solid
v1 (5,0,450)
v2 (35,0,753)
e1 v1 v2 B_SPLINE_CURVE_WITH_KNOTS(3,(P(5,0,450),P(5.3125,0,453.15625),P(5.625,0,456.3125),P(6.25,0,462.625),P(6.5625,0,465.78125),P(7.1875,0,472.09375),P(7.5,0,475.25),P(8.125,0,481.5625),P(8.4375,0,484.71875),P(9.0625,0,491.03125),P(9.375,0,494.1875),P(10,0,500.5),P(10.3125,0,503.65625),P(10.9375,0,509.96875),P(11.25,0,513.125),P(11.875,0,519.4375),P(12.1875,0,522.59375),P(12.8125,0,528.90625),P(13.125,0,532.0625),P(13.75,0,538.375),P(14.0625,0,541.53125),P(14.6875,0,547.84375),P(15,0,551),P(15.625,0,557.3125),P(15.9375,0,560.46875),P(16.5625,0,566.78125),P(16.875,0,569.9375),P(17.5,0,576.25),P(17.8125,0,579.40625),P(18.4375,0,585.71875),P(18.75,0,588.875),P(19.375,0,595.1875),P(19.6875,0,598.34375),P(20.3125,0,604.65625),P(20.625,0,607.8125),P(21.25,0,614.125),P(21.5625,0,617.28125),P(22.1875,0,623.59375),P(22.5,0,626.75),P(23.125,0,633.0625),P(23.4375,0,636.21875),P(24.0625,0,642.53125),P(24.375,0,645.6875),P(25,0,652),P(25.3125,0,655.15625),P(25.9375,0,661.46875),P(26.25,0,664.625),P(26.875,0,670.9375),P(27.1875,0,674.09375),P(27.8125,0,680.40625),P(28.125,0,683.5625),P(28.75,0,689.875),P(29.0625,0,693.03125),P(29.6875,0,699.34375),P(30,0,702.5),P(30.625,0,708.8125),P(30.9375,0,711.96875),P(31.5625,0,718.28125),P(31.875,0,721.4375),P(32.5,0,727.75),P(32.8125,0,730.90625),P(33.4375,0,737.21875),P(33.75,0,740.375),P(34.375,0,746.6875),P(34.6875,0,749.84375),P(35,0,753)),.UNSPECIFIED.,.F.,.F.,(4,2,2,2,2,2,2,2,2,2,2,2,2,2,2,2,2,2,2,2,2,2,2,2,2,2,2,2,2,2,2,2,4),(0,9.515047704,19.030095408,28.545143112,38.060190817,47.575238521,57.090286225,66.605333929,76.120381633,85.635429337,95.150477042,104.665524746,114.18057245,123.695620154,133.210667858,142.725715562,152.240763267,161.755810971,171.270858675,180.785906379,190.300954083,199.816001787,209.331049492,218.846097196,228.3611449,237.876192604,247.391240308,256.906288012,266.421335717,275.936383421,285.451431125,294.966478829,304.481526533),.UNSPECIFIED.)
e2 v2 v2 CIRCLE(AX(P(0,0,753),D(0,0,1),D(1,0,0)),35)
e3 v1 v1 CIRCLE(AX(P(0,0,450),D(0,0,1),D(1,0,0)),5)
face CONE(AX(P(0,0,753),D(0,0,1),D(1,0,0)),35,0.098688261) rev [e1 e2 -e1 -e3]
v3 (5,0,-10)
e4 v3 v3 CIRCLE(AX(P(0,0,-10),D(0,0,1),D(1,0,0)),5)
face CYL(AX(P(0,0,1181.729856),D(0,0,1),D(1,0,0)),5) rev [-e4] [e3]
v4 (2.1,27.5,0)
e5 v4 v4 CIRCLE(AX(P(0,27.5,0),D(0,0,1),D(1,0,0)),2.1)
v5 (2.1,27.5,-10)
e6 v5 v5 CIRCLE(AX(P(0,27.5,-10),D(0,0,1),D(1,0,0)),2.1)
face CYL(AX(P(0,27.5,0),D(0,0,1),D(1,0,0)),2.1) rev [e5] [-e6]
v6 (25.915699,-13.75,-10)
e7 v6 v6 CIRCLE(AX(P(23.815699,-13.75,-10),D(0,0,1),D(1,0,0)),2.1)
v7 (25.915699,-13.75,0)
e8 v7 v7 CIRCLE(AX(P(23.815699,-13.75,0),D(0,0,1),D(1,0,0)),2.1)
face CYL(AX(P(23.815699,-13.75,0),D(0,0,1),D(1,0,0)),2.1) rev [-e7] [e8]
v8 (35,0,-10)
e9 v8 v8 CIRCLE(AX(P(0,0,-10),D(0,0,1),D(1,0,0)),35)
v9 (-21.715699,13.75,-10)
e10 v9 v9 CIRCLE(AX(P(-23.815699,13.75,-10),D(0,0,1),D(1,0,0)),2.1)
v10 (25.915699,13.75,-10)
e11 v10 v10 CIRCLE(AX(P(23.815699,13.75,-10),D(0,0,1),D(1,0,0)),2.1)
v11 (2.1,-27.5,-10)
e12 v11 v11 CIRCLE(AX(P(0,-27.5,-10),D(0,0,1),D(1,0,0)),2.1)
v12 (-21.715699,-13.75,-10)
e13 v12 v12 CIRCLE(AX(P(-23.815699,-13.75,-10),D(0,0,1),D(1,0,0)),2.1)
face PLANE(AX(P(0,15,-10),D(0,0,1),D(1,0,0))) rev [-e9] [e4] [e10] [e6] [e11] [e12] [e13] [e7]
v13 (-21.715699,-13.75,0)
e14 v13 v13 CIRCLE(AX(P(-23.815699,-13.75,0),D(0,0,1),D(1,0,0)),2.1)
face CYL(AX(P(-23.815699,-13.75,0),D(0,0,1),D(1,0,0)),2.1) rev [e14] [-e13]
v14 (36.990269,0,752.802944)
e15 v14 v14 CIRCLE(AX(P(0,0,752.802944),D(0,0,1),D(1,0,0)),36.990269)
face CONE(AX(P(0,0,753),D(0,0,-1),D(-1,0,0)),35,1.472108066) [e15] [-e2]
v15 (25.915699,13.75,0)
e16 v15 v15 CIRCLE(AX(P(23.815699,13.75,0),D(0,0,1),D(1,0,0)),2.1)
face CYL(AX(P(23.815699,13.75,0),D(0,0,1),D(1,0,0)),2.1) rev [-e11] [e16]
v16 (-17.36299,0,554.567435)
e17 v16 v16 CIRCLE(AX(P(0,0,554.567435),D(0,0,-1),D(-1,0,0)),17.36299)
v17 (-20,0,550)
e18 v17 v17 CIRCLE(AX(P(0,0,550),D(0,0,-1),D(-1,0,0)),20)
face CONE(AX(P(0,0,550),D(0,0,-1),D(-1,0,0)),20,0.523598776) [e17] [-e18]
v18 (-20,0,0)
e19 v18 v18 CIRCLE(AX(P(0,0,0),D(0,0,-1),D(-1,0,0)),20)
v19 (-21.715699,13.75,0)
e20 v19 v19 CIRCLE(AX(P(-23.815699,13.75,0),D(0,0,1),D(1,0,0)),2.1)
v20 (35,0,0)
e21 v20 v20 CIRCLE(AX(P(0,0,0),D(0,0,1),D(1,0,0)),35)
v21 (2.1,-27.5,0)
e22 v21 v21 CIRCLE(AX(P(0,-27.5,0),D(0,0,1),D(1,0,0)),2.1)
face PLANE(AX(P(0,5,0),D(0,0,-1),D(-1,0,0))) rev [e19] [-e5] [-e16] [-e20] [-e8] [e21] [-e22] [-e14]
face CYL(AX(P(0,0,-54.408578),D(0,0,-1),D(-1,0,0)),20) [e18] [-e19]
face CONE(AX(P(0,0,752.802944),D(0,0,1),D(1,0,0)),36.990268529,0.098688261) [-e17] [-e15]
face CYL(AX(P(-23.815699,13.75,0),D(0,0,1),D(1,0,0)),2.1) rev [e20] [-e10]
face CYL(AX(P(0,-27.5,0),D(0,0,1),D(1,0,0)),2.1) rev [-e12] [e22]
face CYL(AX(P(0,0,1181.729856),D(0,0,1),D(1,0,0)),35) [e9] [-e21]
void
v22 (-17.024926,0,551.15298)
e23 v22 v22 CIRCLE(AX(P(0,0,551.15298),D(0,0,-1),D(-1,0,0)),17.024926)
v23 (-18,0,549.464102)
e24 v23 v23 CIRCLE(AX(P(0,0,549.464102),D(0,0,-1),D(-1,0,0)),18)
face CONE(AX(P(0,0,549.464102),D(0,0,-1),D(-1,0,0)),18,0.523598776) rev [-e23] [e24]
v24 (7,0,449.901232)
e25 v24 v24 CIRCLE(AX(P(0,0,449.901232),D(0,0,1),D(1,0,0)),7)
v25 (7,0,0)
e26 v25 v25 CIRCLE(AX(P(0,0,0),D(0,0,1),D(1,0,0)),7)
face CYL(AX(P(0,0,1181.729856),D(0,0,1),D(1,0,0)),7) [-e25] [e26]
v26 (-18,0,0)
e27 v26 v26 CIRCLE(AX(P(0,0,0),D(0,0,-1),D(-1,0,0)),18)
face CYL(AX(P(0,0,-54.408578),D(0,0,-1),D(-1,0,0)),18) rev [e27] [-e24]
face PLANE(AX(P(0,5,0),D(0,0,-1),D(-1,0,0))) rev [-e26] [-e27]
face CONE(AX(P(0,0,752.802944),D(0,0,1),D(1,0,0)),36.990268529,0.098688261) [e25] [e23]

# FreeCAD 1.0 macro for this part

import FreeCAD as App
import Part
import Sketcher
from FreeCAD import Vector
Q = App.Units.Quantity

doc = App.newDocument("Part")
body = doc.addObject("PartDesign::Body", "Body")

sketch1 = doc.addObject("Sketcher::SketchObject", "Sketch")
body.addObject(sketch1)
sketch1.AttachmentSupport = (doc.YZ_Plane, [""])
sketch1.MapMode = "FlatFace"
sketch1.addGeometry([
    Part.LineSegment(Vector(35, 753, 0), Vector(5, 450, 0)),
    Part.LineSegment(Vector(5, 450, 0), Vector(5, 0, 0)),
    Part.LineSegment(Vector(5, 0, 0), Vector(7, 0, 0)),
    Part.LineSegment(Vector(7, 0, 0), Vector(7, 449.901232, 0)),
    Part.LineSegment(Vector(7, 449.901232, 0), Vector(36.990269, 752.802944, 0)),
    Part.LineSegment(Vector(36.990269, 752.802944, 0), Vector(35, 753, 0)),
], False)
sketch1.addConstraint([
    Sketcher.Constraint("Coincident", 0, 2, 1, 1),
    Sketcher.Constraint("Coincident", 1, 2, 2, 1),
    Sketcher.Constraint("Coincident", 2, 2, 3, 1),
    Sketcher.Constraint("Coincident", 3, 2, 4, 1),
    Sketcher.Constraint("Coincident", 4, 2, 5, 1),
    Sketcher.Constraint("Coincident", 5, 2, 0, 1),
    Sketcher.Constraint("Vertical", 1),
    Sketcher.Constraint("Horizontal", 2),
    Sketcher.Constraint("Vertical", 3),
    Sketcher.Constraint("PointOnObject", 1, 2, -1),
    Sketcher.Constraint("Parallel", 0, 4),
    Sketcher.Constraint("Perpendicular", 4, 5),
    Sketcher.Constraint("DistanceX", 2, 1, 2, 2, Q("2 mm")),
    Sketcher.Constraint("DistanceY", 1, 2, 1, 1, Q("450 mm")),
    Sketcher.Constraint("Distance", 5, Q("2 mm")),
    Sketcher.Constraint("DistanceX", -1, 1, 0, 2, Q("5 mm")),
    Sketcher.Constraint("DistanceX", -1, 1, 5, 2, Q("35 mm")),
    Sketcher.Constraint("DistanceY", -1, 1, 5, 2, Q("753 mm")),
])
revolution = doc.addObject("PartDesign::Revolution", "Revolution")
body.addObject(revolution)
revolution.Profile = sketch1
revolution.ReferenceAxis = (sketch1, ["V_Axis"])
revolution.Angle = 360

sketch2 = doc.addObject("Sketcher::SketchObject", "Sketch001")
body.addObject(sketch2)
sketch2.AttachmentSupport = (doc.YZ_Plane, [""])
sketch2.MapMode = "FlatFace"
sketch2.addGeometry([
    Part.LineSegment(Vector(35, 0, 0), Vector(5, 0, 0)),
    Part.LineSegment(Vector(5, 0, 0), Vector(5, -10, 0)),
    Part.LineSegment(Vector(5, -10, 0), Vector(35, -10, 0)),
    Part.LineSegment(Vector(35, -10, 0), Vector(35, 0, 0)),
], False)
sketch2.addConstraint([
    Sketcher.Constraint("Coincident", 0, 2, 1, 1),
    Sketcher.Constraint("Coincident", 1, 2, 2, 1),
    Sketcher.Constraint("Coincident", 2, 2, 3, 1),
    Sketcher.Constraint("Coincident", 3, 2, 0, 1),
    Sketcher.Constraint("Horizontal", 0),
    Sketcher.Constraint("Vertical", 1),
    Sketcher.Constraint("Horizontal", 2),
    Sketcher.Constraint("Vertical", 3),
    Sketcher.Constraint("PointOnObject", 0, 2, -1),
    Sketcher.Constraint("DistanceX", 0, 2, 0, 1, Q("30 mm")),
    Sketcher.Constraint("DistanceY", 1, 2, 1, 1, Q("10 mm")),
    Sketcher.Constraint("DistanceX", -1, 1, 0, 2, Q("5 mm")),
])
revolution2 = doc.addObject("PartDesign::Revolution", "Revolution001")
body.addObject(revolution2)
revolution2.Profile = sketch2
revolution2.ReferenceAxis = (sketch2, ["V_Axis"])
revolution2.Angle = 360

sketch3 = doc.addObject("Sketcher::SketchObject", "Sketch002")
body.addObject(sketch3)
sketch3.AttachmentSupport = (doc.YZ_Plane, [""])
sketch3.MapMode = "FlatFace"
sketch3.addGeometry([
    Part.LineSegment(Vector(20, 0, 0), Vector(20, 550, 0)),
    Part.LineSegment(Vector(20, 550, 0), Vector(17.36299, 554.567435, 0)),
    Part.LineSegment(Vector(17.36299, 554.567435, 0), Vector(15.63094, 553.567435, 0)),
    Part.LineSegment(Vector(15.63094, 553.567435, 0), Vector(18, 549.464102, 0)),
    Part.LineSegment(Vector(18, 549.464102, 0), Vector(18, 0, 0)),
    Part.LineSegment(Vector(18, 0, 0), Vector(20, 0, 0)),
], False)
sketch3.addConstraint([
    Sketcher.Constraint("Coincident", 0, 2, 1, 1),
    Sketcher.Constraint("Coincident", 1, 2, 2, 1),
    Sketcher.Constraint("Coincident", 2, 2, 3, 1),
    Sketcher.Constraint("Coincident", 3, 2, 4, 1),
    Sketcher.Constraint("Coincident", 4, 2, 5, 1),
    Sketcher.Constraint("Coincident", 5, 2, 0, 1),
    Sketcher.Constraint("Vertical", 0),
    Sketcher.Constraint("Vertical", 4),
    Sketcher.Constraint("Horizontal", 5),
    Sketcher.Constraint("PointOnObject", 4, 2, -1),
    Sketcher.Constraint("Perpendicular", 1, 2),
    Sketcher.Constraint("Perpendicular", 2, 3),
    Sketcher.Constraint("DistanceX", 5, 1, 5, 2, Q("2 mm")),
    Sketcher.Constraint("DistanceY", 0, 1, 0, 2, Q("550 mm")),
    Sketcher.Constraint("Angle", 1, Q("120 deg")),
    Sketcher.Constraint("Distance", 2, Q("2 mm")),
    Sketcher.Constraint("DistanceX", -1, 1, 0, 2, Q("20 mm")),
    Sketcher.Constraint("Distance", 1, Q("5.274019 mm")),
])
revolution3 = doc.addObject("PartDesign::Revolution", "Revolution002")
body.addObject(revolution3)
revolution3.Profile = sketch3
revolution3.ReferenceAxis = (sketch3, ["V_Axis"])
revolution3.Angle = 360

sketch4 = doc.addObject("Sketcher::SketchObject", "Sketch003")
body.addObject(sketch4)
sketch4.AttachmentSupport = (doc.XY_Plane, [""])
sketch4.MapMode = "FlatFace"
sketch4.addGeometry([
    Part.Circle(Vector(-23.815699, 13.75, 0), Vector(0, 0, 1), 2.1),
    Part.Circle(Vector(0, 27.5, 0), Vector(0, 0, 1), 2.1),
    Part.Circle(Vector(23.815699, 13.75, 0), Vector(0, 0, 1), 2.1),
    Part.Circle(Vector(23.815699, -13.75, 0), Vector(0, 0, 1), 2.1),
    Part.Circle(Vector(-23.815699, -13.75, 0), Vector(0, 0, 1), 2.1),
    Part.Circle(Vector(0, -27.5, 0), Vector(0, 0, 1), 2.1),
], False)
sketch4.addConstraint([
    Sketcher.Constraint("Equal", 0, 1),
    Sketcher.Constraint("Equal", 1, 2),
    Sketcher.Constraint("Equal", 2, 3),
    Sketcher.Constraint("Equal", 3, 4),
    Sketcher.Constraint("Equal", 4, 5),
    Sketcher.Constraint("Symmetric", 0, 3, 3, 3, -1, 1),
    Sketcher.Constraint("Symmetric", 2, 3, 4, 3, -1, 1),
    Sketcher.Constraint("Symmetric", 1, 3, 5, 3, -1, 1),
    Sketcher.Constraint("Symmetric", 0, 3, 2, 3, -2),
    Sketcher.Constraint("PointOnObject", 1, 3, -2),
    Sketcher.Constraint("Diameter", 0, Q("4.2 mm")),
    Sketcher.Constraint("DistanceY", 5, 3, 1, 3, Q("55 mm")),
    Sketcher.Constraint("DistanceY", 3, 3, 2, 3, Q("27.5 mm")),
    Sketcher.Constraint("DistanceX", 0, 3, -1, 1, Q("23.815699 mm")),
])
doc.recompute()
hole = doc.addObject("PartDesign::Hole", "Hole")
body.addObject(hole)
hole.Profile = sketch4
hole.ThreadType = "None"
hole.Diameter = 4.2
hole.DepthType = "Dimension"
hole.Depth = 10
hole.DrillPoint = "Flat"

doc.recompute()
